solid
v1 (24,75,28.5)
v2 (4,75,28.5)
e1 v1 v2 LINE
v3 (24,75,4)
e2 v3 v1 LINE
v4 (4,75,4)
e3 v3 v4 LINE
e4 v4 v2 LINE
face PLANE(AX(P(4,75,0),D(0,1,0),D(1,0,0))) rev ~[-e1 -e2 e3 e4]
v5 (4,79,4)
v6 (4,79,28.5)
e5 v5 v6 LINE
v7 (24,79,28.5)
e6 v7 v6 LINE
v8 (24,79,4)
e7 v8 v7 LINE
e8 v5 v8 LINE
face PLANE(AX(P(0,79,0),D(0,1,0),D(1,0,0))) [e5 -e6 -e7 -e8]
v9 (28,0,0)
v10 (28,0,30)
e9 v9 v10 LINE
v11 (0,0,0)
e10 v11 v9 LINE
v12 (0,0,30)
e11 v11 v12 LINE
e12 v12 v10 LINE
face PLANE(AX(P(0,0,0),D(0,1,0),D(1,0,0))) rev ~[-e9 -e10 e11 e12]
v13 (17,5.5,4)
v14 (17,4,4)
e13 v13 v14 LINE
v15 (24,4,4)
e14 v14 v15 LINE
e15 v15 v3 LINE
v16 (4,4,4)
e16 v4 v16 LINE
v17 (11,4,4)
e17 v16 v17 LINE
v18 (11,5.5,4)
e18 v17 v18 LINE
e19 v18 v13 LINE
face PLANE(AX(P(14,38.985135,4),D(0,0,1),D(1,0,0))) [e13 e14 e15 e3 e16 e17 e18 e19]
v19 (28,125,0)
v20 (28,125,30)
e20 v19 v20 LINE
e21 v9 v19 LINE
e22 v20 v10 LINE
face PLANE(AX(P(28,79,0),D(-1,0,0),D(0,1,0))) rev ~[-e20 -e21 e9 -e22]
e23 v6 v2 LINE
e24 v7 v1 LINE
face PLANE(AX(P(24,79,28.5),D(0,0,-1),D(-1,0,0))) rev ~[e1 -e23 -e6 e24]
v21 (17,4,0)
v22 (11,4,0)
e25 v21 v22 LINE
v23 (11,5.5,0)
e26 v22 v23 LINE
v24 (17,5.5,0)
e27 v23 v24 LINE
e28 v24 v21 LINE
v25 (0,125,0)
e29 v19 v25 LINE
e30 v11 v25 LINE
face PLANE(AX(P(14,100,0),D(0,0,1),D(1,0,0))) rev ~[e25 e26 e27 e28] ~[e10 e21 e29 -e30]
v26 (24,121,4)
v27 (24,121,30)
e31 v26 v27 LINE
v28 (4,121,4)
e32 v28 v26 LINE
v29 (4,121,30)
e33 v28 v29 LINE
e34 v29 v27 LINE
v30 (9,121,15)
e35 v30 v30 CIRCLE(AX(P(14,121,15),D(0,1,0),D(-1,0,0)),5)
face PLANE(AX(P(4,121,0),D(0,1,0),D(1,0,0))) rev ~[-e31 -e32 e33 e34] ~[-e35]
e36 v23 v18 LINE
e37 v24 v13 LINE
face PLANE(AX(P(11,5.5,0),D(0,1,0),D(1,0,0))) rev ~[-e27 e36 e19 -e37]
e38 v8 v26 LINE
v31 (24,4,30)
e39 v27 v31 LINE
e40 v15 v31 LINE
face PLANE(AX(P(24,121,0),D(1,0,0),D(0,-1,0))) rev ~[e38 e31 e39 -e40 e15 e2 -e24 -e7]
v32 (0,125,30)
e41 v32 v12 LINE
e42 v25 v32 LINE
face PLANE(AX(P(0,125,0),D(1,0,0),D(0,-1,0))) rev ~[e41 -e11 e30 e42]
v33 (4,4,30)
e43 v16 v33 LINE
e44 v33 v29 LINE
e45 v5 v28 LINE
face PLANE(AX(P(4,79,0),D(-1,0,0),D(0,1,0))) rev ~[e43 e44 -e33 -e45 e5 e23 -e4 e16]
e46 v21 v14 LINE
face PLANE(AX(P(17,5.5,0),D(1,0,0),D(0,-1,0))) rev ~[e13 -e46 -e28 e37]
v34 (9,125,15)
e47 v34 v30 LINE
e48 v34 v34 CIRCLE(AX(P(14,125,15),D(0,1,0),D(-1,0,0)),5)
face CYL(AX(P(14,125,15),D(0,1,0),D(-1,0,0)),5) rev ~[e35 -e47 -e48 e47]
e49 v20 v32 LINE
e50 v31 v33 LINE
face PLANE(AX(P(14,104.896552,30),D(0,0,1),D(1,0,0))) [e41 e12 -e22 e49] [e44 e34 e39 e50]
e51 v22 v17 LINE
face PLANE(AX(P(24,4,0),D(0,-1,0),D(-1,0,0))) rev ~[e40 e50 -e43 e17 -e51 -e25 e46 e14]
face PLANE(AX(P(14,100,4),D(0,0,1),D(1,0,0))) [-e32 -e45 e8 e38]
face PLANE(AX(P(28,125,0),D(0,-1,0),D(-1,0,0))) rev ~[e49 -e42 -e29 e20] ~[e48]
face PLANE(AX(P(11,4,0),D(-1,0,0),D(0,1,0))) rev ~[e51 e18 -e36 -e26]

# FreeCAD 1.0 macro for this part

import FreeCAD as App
import Part
import Sketcher
from FreeCAD import Vector
Q = App.Units.Quantity

doc = App.newDocument("Part")
body = doc.addObject("PartDesign::Body", "Body")

# Sketch on XY plane
sketch1 = body.newObject("Sketcher::SketchObject", "Sketch")
sketch1.AttachmentSupport = (doc.getObject("XY_Plane"), [""])
sketch1.MapMode = "FlatFace"
sketch1.addGeometry([
    Part.LineSegment(Vector(17, 4, 0), Vector(24, 4, 0)),  # 0
    Part.LineSegment(Vector(24, 4, 0), Vector(24, 75, 0)),  # 1
    Part.LineSegment(Vector(24, 75, 0), Vector(4, 75, 0)),  # 2
    Part.LineSegment(Vector(4, 75, 0), Vector(4, 4, 0)),  # 3
    Part.LineSegment(Vector(4, 4, 0), Vector(11, 4, 0)),  # 4
    Part.LineSegment(Vector(11, 4, 0), Vector(11, 5.5, 0)),  # 5
    Part.LineSegment(Vector(11, 5.5, 0), Vector(17, 5.5, 0)),  # 6
    Part.LineSegment(Vector(17, 5.5, 0), Vector(17, 4, 0)),  # 7
], False)
sketch1.addConstraint([
    Sketcher.Constraint("Coincident", 0, 2, 1, 1),
    Sketcher.Constraint("Coincident", 1, 2, 2, 1),
    Sketcher.Constraint("Coincident", 2, 2, 3, 1),
    Sketcher.Constraint("Coincident", 3, 2, 4, 1),
    Sketcher.Constraint("Coincident", 4, 2, 5, 1),
    Sketcher.Constraint("Coincident", 5, 2, 6, 1),
    Sketcher.Constraint("Coincident", 6, 2, 7, 1),
    Sketcher.Constraint("Coincident", 7, 2, 0, 1),
    Sketcher.Constraint("Horizontal", 0),
    Sketcher.Constraint("Vertical", 1),
    Sketcher.Constraint("Horizontal", 2),
    Sketcher.Constraint("Vertical", 3),
    Sketcher.Constraint("Horizontal", 4),
    Sketcher.Constraint("Vertical", 5),
    Sketcher.Constraint("Horizontal", 6),
    Sketcher.Constraint("Vertical", 7),
    Sketcher.Constraint("Horizontal", 0, 2, 3, 2),
    Sketcher.Constraint("Equal", 0, 4),
    Sketcher.Constraint("DistanceX", 0, 1, 0, 2, Q("7 mm")),
    Sketcher.Constraint("DistanceX", 2, 2, 2, 1, Q("20 mm")),
    Sketcher.Constraint("DistanceY", 1, 1, 1, 2, Q("71 mm")),
    Sketcher.Constraint("DistanceY", 5, 1, 5, 2, Q("1.5 mm")),
    Sketcher.Constraint("DistanceX", -1, 1, 0, 2, Q("24 mm")),
    Sketcher.Constraint("DistanceY", -1, 1, 0, 2, Q("4 mm")),
])
pad1 = body.newObject("PartDesign::Pad", "Pad")
pad1.Profile = sketch1
pad1.Length = 4

# Sketch on XY plane
sketch2 = body.newObject("Sketcher::SketchObject", "Sketch001")
sketch2.AttachmentSupport = (doc.getObject("XY_Plane"), [""])
sketch2.MapMode = "FlatFace"
sketch2.addGeometry([
    Part.LineSegment(Vector(0, 79, 0), Vector(0, 0, 0)),  # 0
    Part.LineSegment(Vector(0, 0, 0), Vector(28, 0, 0)),  # 1
    Part.LineSegment(Vector(28, 0, 0), Vector(28, 79, 0)),  # 2
    Part.LineSegment(Vector(28, 79, 0), Vector(0, 79, 0)),  # 3
    Part.LineSegment(Vector(4, 75, 0), Vector(24, 75, 0)),  # 4
    Part.LineSegment(Vector(24, 75, 0), Vector(24, 4, 0)),  # 5
    Part.LineSegment(Vector(24, 4, 0), Vector(4, 4, 0)),  # 6
    Part.LineSegment(Vector(4, 4, 0), Vector(4, 75, 0)),  # 7
], False)
sketch2.addConstraint([
    Sketcher.Constraint("Coincident", 0, 2, 1, 1),
    Sketcher.Constraint("Coincident", 1, 2, 2, 1),
    Sketcher.Constraint("Coincident", 2, 2, 3, 1),
    Sketcher.Constraint("Coincident", 3, 2, 0, 1),
    Sketcher.Constraint("Coincident", 4, 2, 5, 1),
    Sketcher.Constraint("Coincident", 5, 2, 6, 1),
    Sketcher.Constraint("Coincident", 6, 2, 7, 1),
    Sketcher.Constraint("Coincident", 7, 2, 4, 1),
    Sketcher.Constraint("Vertical", 0),
    Sketcher.Constraint("Horizontal", 1),
    Sketcher.Constraint("Vertical", 2),
    Sketcher.Constraint("Horizontal", 3),
    Sketcher.Constraint("Horizontal", 4),
    Sketcher.Constraint("Vertical", 5),
    Sketcher.Constraint("Horizontal", 6),
    Sketcher.Constraint("Vertical", 7),
    Sketcher.Constraint("Coincident", 0, 2, -1, 1),
    Sketcher.Constraint("DistanceX", 1, 1, 1, 2, Q("28 mm")),
    Sketcher.Constraint("DistanceX", 4, 1, 4, 2, Q("20 mm")),
    Sketcher.Constraint("DistanceY", 0, 2, 0, 1, Q("79 mm")),
    Sketcher.Constraint("DistanceY", 5, 2, 5, 1, Q("71 mm")),
    Sketcher.Constraint("DistanceX", -1, 1, 4, 2, Q("24 mm")),
    Sketcher.Constraint("DistanceY", -1, 1, 4, 2, Q("75 mm")),
])
pad2 = body.newObject("PartDesign::Pad", "Pad001")
pad2.Profile = sketch2
pad2.Length = 30

# Sketch on XZ plane
sketch3 = body.newObject("Sketcher::SketchObject", "Sketch002")
sketch3.AttachmentSupport = (doc.getObject("XZ_Plane"), [""])
sketch3.MapMode = "FlatFace"
sketch3.AttachmentOffset = App.Placement(Vector(0, 0, -79), App.Rotation())
sketch3.addGeometry([
    Part.LineSegment(Vector(4, 28.5, 0), Vector(4, 30, 0)),
    Part.LineSegment(Vector(4, 30, 0), Vector(24, 30, 0)),
    Part.LineSegment(Vector(24, 30, 0), Vector(24, 28.5, 0)),
    Part.LineSegment(Vector(24, 28.5, 0), Vector(4, 28.5, 0)),
], False)
sketch3.addConstraint([
    Sketcher.Constraint("Coincident", 0, 2, 1, 1),
    Sketcher.Constraint("Coincident", 1, 2, 2, 1),
    Sketcher.Constraint("Coincident", 2, 2, 3, 1),
    Sketcher.Constraint("Coincident", 3, 2, 0, 1),
    Sketcher.Constraint("Vertical", 0),
    Sketcher.Constraint("Horizontal", 1),
    Sketcher.Constraint("Vertical", 2),
    Sketcher.Constraint("Horizontal", 3),
    Sketcher.Constraint("DistanceX", 1, 1, 1, 2, Q("20 mm")),
    Sketcher.Constraint("DistanceY", 0, 1, 0, 2, Q("1.5 mm")),
    Sketcher.Constraint("DistanceX", -1, 1, 0, 2, Q("4 mm")),
    Sketcher.Constraint("DistanceY", -1, 1, 0, 2, Q("30 mm")),
])
pocket1 = body.newObject("PartDesign::Pocket", "Pocket")
pocket1.Profile = sketch3
pocket1.Length = 4
pocket1.Reversed = True

# Sketch on XY plane
sketch4 = body.newObject("Sketcher::SketchObject", "Sketch003")
sketch4.AttachmentSupport = (doc.getObject("XY_Plane"), [""])
sketch4.MapMode = "FlatFace"
sketch4.addGeometry([
    Part.LineSegment(Vector(24, 79, 0), Vector(28, 79, 0)),  # 0
    Part.LineSegment(Vector(28, 79, 0), Vector(28, 125, 0)),  # 1
    Part.LineSegment(Vector(28, 125, 0), Vector(0, 125, 0)),  # 2
    Part.LineSegment(Vector(0, 125, 0), Vector(0, 79, 0)),  # 3
    Part.LineSegment(Vector(0, 79, 0), Vector(4, 79, 0)),  # 4
    Part.LineSegment(Vector(4, 79, 0), Vector(4, 121, 0)),  # 5
    Part.LineSegment(Vector(4, 121, 0), Vector(24, 121, 0)),  # 6
    Part.LineSegment(Vector(24, 121, 0), Vector(24, 79, 0)),  # 7
], False)
sketch4.addConstraint([
    Sketcher.Constraint("Coincident", 0, 2, 1, 1),
    Sketcher.Constraint("Coincident", 1, 2, 2, 1),
    Sketcher.Constraint("Coincident", 2, 2, 3, 1),
    Sketcher.Constraint("Coincident", 3, 2, 4, 1),
    Sketcher.Constraint("Coincident", 4, 2, 5, 1),
    Sketcher.Constraint("Coincident", 5, 2, 6, 1),
    Sketcher.Constraint("Coincident", 6, 2, 7, 1),
    Sketcher.Constraint("Coincident", 7, 2, 0, 1),
    Sketcher.Constraint("Horizontal", 0),
    Sketcher.Constraint("Vertical", 1),
    Sketcher.Constraint("Horizontal", 2),
    Sketcher.Constraint("Vertical", 3),
    Sketcher.Constraint("Horizontal", 4),
    Sketcher.Constraint("Vertical", 5),
    Sketcher.Constraint("Horizontal", 6),
    Sketcher.Constraint("Vertical", 7),
    Sketcher.Constraint("PointOnObject", 2, 2, -2),
    Sketcher.Constraint("Horizontal", 0, 2, 3, 2),
    Sketcher.Constraint("Equal", 0, 4),
    Sketcher.Constraint("DistanceX", 0, 1, 0, 2, Q("4 mm")),
    Sketcher.Constraint("DistanceX", 2, 2, 2, 1, Q("28 mm")),
    Sketcher.Constraint("DistanceY", 1, 1, 1, 2, Q("46 mm")),
    Sketcher.Constraint("DistanceY", 5, 1, 5, 2, Q("42 mm")),
    Sketcher.Constraint("DistanceY", -1, 1, 0, 2, Q("79 mm")),
])
pad3 = body.newObject("PartDesign::Pad", "Pad002")
pad3.Profile = sketch4
pad3.Length = 30

# Sketch on XY plane
sketch5 = body.newObject("Sketcher::SketchObject", "Sketch004")
sketch5.AttachmentSupport = (doc.getObject("XY_Plane"), [""])
sketch5.MapMode = "FlatFace"
sketch5.addGeometry([
    Part.LineSegment(Vector(4, 121, 0), Vector(4, 79, 0)),
    Part.LineSegment(Vector(4, 79, 0), Vector(24, 79, 0)),
    Part.LineSegment(Vector(24, 79, 0), Vector(24, 121, 0)),
    Part.LineSegment(Vector(24, 121, 0), Vector(4, 121, 0)),
], False)
sketch5.addConstraint([
    Sketcher.Constraint("Coincident", 0, 2, 1, 1),
    Sketcher.Constraint("Coincident", 1, 2, 2, 1),
    Sketcher.Constraint("Coincident", 2, 2, 3, 1),
    Sketcher.Constraint("Coincident", 3, 2, 0, 1),
    Sketcher.Constraint("Vertical", 0),
    Sketcher.Constraint("Horizontal", 1),
    Sketcher.Constraint("Vertical", 2),
    Sketcher.Constraint("Horizontal", 3),
    Sketcher.Constraint("DistanceX", 1, 1, 1, 2, Q("20 mm")),
    Sketcher.Constraint("DistanceY", 0, 2, 0, 1, Q("42 mm")),
    Sketcher.Constraint("DistanceX", -1, 1, 0, 2, Q("4 mm")),
    Sketcher.Constraint("DistanceY", -1, 1, 0, 2, Q("79 mm")),
])
pad4 = body.newObject("PartDesign::Pad", "Pad003")
pad4.Profile = sketch5
pad4.Length = 4

# Sketch on XZ plane
sketch6 = body.newObject("Sketcher::SketchObject", "Sketch005")
sketch6.AttachmentSupport = (doc.getObject("XZ_Plane"), [""])
sketch6.MapMode = "FlatFace"
sketch6.AttachmentOffset = App.Placement(Vector(0, 0, -125), App.Rotation())
sketch6.addGeometry(Part.Circle(Vector(14, 15, 0), Vector(0, 0, 1), 5), False)
sketch6.addConstraint([
    Sketcher.Constraint("Diameter", 0, Q("10 mm")),
    Sketcher.Constraint("DistanceX", -1, 1, 0, 3, Q("14 mm")),
    Sketcher.Constraint("DistanceY", -1, 1, 0, 3, Q("15 mm")),
])
pocket2 = body.newObject("PartDesign::Pocket", "Pocket001")
pocket2.Profile = sketch6
pocket2.Length = 4
pocket2.Reversed = True

doc.recompute()
